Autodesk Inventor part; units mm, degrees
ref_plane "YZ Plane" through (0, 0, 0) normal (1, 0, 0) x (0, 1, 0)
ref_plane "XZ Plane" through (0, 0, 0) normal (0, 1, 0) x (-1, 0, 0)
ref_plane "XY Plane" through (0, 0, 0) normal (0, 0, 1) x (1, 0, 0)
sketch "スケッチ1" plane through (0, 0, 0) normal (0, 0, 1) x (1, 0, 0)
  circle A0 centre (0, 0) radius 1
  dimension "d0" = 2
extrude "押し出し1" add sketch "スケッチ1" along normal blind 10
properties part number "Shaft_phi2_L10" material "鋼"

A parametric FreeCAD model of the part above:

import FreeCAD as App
import Part
import Sketcher

doc = App.newDocument("Part")
body = doc.addObject("PartDesign::Body", "Body")

sketch1 = body.newObject("Sketcher::SketchObject", "Sketch")
sketch1.AttachmentSupport = (doc.getObject("XY_Plane"), [""])
sketch1.MapMode = "FlatFace"
sketch1.addGeometry(Part.Circle(App.Vector(0, 0, 0), App.Vector(0, 0, 1), 1), False)
sketch1.addConstraint([
    Sketcher.Constraint("Coincident", 0, 3, -1, 1),
    Sketcher.Constraint("Diameter", 0, 2.0),
])
pad1 = body.newObject("PartDesign::Pad", "Pad")
pad1.Profile = sketch1
pad1.Length = 10

doc.recompute()
